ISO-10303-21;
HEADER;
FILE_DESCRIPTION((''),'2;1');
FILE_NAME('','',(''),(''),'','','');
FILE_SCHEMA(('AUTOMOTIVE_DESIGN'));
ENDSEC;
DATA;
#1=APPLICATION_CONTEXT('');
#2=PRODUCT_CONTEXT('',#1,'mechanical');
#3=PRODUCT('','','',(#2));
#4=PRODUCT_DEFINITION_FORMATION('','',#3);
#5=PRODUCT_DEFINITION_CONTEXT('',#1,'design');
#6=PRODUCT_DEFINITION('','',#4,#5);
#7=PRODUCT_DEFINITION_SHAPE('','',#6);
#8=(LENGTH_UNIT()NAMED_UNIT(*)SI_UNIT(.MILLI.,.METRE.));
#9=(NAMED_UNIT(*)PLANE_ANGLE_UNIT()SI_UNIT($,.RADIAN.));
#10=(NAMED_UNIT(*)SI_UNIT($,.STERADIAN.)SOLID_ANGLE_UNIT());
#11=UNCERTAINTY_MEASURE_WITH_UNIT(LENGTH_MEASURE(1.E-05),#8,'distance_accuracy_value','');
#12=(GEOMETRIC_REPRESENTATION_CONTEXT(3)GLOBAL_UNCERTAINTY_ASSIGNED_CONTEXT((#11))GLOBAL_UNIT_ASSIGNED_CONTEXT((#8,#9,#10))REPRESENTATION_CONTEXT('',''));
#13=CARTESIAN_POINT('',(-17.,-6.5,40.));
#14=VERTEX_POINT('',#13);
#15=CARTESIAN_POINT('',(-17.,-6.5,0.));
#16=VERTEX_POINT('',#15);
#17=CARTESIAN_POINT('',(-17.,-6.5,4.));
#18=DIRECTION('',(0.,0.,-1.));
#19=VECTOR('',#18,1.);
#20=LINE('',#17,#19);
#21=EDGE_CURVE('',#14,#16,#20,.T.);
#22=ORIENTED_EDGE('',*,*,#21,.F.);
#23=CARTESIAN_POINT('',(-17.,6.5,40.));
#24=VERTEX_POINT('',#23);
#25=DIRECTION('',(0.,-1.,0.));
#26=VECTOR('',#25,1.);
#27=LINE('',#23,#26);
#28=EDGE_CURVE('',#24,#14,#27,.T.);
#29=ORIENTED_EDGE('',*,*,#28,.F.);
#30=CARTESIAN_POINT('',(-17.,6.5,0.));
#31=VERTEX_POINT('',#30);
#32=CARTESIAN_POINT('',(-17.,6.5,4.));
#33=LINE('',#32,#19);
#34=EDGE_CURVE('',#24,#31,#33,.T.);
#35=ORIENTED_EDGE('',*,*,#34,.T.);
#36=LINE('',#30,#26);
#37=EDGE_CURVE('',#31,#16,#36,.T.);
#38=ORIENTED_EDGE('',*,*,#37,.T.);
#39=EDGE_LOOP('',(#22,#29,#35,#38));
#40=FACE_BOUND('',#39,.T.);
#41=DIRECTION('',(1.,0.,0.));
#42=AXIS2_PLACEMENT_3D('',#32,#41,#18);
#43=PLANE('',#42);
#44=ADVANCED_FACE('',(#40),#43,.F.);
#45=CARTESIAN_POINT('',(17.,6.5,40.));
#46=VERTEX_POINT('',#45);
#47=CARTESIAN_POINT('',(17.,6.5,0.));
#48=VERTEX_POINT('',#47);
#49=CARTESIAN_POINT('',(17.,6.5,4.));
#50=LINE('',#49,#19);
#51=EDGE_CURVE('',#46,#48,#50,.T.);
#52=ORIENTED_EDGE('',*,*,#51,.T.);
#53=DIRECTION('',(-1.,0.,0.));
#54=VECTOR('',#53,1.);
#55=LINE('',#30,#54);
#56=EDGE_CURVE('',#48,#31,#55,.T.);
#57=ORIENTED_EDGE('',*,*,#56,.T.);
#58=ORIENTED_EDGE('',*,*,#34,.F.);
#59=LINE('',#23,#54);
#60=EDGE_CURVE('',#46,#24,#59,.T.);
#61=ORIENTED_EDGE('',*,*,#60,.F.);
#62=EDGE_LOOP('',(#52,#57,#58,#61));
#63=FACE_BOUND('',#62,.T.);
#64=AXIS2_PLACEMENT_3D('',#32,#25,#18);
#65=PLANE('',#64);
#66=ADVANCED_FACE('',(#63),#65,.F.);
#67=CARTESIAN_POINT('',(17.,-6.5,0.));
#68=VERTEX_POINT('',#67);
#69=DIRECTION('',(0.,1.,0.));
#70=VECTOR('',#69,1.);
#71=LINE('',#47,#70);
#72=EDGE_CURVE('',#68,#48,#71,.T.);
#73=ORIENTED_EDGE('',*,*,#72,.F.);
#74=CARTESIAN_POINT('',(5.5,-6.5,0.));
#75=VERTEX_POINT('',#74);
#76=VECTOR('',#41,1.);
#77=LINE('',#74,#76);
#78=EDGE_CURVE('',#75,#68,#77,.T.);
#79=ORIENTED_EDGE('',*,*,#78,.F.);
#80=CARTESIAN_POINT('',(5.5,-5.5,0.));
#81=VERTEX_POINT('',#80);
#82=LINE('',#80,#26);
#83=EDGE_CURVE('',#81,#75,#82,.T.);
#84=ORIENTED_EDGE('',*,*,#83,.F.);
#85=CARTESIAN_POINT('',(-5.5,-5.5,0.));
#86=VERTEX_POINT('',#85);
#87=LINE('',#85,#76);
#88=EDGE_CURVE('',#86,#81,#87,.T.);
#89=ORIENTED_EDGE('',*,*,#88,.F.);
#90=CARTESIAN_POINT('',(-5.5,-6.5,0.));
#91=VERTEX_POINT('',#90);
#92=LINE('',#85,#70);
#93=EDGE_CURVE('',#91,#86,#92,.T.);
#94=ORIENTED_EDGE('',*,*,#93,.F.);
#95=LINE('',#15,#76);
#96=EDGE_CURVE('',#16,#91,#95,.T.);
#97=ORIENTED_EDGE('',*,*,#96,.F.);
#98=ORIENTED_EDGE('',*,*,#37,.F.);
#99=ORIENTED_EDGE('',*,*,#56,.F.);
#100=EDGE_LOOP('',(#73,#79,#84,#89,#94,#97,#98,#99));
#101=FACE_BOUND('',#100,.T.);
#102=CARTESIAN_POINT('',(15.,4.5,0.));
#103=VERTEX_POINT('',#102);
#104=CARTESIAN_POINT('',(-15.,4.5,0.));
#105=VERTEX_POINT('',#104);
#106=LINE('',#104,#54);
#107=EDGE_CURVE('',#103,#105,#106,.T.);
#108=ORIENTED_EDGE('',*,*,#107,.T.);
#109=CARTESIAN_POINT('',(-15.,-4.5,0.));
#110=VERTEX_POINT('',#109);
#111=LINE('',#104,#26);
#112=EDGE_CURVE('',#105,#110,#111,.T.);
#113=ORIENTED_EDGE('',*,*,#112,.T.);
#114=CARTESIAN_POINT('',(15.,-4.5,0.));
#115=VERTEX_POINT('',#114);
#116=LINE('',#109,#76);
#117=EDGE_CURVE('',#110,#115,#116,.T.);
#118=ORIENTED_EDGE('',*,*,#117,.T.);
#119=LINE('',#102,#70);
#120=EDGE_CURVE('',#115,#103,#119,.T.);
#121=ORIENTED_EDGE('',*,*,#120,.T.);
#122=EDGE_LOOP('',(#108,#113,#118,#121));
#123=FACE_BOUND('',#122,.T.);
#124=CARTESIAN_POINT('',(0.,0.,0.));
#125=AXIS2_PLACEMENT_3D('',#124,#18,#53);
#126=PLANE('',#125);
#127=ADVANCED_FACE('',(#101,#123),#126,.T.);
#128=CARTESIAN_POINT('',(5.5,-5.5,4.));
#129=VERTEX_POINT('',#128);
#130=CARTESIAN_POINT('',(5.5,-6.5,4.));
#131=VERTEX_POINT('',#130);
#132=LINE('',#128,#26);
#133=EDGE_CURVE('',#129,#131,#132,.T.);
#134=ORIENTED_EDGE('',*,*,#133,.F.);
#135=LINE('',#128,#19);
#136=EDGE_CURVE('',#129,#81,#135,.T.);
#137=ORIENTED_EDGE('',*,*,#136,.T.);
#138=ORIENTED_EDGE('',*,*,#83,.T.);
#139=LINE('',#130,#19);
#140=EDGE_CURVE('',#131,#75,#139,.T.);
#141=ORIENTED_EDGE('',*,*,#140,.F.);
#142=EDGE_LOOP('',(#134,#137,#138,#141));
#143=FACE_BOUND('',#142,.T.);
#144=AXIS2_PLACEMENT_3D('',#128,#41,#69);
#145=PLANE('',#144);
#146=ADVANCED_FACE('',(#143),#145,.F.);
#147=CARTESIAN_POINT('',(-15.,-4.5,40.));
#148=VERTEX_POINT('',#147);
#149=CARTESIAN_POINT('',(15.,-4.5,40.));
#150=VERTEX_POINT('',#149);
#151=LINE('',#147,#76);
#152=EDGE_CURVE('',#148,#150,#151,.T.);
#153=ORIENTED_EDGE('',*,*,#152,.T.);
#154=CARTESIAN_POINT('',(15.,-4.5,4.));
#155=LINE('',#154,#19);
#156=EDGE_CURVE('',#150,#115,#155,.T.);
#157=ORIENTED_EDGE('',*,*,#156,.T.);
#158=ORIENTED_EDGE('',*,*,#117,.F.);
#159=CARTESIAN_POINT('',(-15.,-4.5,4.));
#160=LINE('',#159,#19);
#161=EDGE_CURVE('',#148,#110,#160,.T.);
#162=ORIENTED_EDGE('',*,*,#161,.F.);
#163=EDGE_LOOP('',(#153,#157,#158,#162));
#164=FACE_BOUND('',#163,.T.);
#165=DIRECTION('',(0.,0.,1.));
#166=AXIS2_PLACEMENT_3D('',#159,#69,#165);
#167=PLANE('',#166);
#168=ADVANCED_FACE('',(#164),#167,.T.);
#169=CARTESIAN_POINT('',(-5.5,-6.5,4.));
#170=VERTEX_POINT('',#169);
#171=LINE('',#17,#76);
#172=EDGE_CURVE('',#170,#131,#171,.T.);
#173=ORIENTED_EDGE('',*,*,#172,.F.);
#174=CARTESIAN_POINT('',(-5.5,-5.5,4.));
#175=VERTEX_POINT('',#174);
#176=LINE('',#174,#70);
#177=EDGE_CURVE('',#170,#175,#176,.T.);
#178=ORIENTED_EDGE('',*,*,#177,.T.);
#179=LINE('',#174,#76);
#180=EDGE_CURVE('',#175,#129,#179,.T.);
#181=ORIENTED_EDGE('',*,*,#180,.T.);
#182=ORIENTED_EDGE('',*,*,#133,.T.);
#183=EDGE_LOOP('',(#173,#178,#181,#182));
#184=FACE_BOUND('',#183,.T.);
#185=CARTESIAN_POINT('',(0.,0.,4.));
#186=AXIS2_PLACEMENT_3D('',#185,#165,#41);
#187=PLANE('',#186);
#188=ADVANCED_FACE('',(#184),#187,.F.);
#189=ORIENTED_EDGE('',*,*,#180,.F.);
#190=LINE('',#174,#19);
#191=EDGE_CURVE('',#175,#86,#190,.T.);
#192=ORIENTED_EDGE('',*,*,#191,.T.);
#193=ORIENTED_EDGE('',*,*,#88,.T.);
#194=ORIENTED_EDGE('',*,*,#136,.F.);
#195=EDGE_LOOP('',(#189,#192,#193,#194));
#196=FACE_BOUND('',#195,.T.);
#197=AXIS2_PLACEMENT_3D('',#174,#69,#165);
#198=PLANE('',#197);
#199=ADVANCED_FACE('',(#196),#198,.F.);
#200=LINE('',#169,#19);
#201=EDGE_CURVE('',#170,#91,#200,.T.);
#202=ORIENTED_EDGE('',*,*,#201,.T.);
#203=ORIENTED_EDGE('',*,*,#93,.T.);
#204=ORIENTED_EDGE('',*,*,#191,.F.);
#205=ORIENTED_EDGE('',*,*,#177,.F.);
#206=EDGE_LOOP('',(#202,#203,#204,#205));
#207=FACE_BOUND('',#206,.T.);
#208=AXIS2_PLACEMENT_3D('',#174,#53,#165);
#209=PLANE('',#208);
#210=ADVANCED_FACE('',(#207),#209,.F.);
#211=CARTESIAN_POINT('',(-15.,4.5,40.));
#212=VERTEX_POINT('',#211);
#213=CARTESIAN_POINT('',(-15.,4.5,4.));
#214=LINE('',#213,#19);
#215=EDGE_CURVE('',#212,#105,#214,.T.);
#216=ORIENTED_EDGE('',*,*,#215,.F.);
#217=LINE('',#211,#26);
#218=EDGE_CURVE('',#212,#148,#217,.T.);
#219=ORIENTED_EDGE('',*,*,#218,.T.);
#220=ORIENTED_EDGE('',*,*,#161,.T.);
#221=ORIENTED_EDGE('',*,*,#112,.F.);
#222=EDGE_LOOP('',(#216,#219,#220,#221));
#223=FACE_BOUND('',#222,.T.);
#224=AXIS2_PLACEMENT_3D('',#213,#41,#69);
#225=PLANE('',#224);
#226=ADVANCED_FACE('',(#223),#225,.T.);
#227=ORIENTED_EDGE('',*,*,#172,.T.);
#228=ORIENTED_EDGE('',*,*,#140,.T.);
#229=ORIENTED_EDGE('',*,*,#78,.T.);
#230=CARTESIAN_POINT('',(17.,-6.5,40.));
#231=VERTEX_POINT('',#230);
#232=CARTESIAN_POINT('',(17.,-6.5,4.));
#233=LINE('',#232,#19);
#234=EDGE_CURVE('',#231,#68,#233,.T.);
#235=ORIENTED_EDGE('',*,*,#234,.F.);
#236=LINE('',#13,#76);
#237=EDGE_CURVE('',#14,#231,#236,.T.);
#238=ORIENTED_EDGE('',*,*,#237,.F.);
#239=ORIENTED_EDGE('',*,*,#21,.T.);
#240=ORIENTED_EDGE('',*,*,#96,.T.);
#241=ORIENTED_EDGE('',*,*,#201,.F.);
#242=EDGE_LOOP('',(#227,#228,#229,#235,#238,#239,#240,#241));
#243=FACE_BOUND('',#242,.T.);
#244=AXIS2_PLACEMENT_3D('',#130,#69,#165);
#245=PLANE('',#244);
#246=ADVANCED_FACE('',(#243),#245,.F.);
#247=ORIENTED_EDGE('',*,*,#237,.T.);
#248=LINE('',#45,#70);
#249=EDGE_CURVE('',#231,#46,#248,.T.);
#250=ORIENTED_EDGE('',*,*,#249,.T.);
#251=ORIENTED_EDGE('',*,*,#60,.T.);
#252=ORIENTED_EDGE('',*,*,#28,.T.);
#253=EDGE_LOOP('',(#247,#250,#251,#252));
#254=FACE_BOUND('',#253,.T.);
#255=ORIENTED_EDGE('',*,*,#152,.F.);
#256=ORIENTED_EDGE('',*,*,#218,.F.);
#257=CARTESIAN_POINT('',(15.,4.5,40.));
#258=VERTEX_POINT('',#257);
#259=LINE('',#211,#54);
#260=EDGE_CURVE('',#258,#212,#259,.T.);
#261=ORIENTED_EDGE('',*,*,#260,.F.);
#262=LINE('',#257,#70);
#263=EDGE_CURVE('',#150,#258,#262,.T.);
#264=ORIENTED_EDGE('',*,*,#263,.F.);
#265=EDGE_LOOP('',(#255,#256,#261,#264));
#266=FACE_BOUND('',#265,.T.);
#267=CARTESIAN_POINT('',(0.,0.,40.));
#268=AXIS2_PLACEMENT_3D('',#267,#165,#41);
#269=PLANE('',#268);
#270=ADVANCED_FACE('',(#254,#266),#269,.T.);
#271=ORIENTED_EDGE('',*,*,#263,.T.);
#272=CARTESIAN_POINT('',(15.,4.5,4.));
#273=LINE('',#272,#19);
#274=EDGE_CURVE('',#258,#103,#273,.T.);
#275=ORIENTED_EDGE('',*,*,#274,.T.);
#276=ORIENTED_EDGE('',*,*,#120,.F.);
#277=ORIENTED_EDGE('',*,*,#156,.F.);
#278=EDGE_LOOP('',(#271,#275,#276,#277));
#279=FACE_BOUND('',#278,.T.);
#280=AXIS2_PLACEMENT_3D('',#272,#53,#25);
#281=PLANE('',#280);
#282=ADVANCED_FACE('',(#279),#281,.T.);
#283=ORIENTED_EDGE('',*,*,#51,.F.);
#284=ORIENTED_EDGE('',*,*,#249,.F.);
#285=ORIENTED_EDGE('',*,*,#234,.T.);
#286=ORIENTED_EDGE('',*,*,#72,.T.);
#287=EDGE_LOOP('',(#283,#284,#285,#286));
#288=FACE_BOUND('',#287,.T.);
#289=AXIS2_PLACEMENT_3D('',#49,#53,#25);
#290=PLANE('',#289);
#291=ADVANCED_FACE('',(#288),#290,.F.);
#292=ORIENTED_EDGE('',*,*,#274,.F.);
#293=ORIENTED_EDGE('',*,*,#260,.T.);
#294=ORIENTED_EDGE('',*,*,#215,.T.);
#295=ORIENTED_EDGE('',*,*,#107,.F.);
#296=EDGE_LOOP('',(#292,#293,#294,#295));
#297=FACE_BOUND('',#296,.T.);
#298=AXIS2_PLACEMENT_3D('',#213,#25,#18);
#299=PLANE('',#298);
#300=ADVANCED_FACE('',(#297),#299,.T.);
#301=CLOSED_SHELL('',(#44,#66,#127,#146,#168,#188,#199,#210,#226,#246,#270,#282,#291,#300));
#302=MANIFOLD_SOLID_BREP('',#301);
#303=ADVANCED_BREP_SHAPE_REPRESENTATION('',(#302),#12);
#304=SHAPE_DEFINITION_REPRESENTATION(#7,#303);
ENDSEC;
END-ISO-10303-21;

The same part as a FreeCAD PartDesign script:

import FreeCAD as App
import Part
import Sketcher
Q = App.Units.Quantity


def add_polygon(sketch, points):
    """Adds a closed chain of lines whose ends are joined by coincident constraints."""
    first, n = sketch.GeometryCount, len(points)
    for a, b in zip(points, points[1:] + points[:1]):
        sketch.addGeometry(Part.LineSegment(App.Vector(*a, 0), App.Vector(*b, 0)), False)
    for i in range(n):
        sketch.addConstraint(Sketcher.Constraint("Coincident", first + i, 2, first + (i + 1) % n, 1))

doc = App.newDocument("Part")
params = doc.addObject("Spreadsheet::Sheet", "Params")
for row, (alias, value) in enumerate([
    ("sketch1_width", "11 mm"),
    ("sketch1_width2", "34 mm"),
    ("sketch1_width3", "30 mm"),
    ("sketch1_height", "13 mm"),
    ("sketch1_height2", "1 mm"),
    ("pad1_length", "4 mm"),
    ("sketch2_width", "34 mm"),
    ("sketch2_width2", "30 mm"),
    ("sketch2_height", "13 mm"),
    ("sketch2_height2", "9 mm"),
    ("pad2_length", "36 mm"),
], start=1):
    params.set(f"A{row}", alias)
    params.set(f"B{row}", "=" + value)
    params.setAlias(f"B{row}", alias)

body = doc.addObject("PartDesign::Body", "Body")

# Sketch on XY plane
sketch1 = doc.addObject("Sketcher::SketchObject", "Sketch")
body.addObject(sketch1)
sketch1.AttachmentSupport = (doc.XY_Plane, [""])
sketch1.MapMode = "FlatFace"
add_polygon(sketch1, [(-17, 6.5), (-17, -6.5), (-5.5, -6.5), (-5.5, -5.5), (5.5, -5.5), (5.5, -6.5), (17, -6.5), (17, 6.5)])  # lines 0-7
add_polygon(sketch1, [(15, -4.5), (-15, -4.5), (-15, 4.5), (15, 4.5)])  # lines 8-11
sketch1.addConstraint([
    Sketcher.Constraint("Vertical", 0),
    Sketcher.Constraint("Horizontal", 1),
    Sketcher.Constraint("Vertical", 2),
    Sketcher.Constraint("Horizontal", 3),
    Sketcher.Constraint("Vertical", 4),
    Sketcher.Constraint("Horizontal", 5),
    Sketcher.Constraint("Vertical", 6),
    Sketcher.Constraint("Horizontal", 7),
    Sketcher.Constraint("Horizontal", 8),
    Sketcher.Constraint("Vertical", 9),
    Sketcher.Constraint("Horizontal", 10),
    Sketcher.Constraint("Vertical", 11),
    Sketcher.Constraint("Symmetric", 0, 2, 6, 2, -1, 1),
    Sketcher.Constraint("Symmetric", 8, 2, 10, 2, -1, 1),
    Sketcher.Constraint("Symmetric", 1, 2, 4, 2, -2),
    Sketcher.Constraint("DistanceX", 3, 1, 3, 2, Q("11 mm")),
    Sketcher.Constraint("DistanceX", 7, 2, 7, 1, Q("34 mm")),
    Sketcher.Constraint("DistanceX", 8, 2, 8, 1, Q("30 mm")),
    Sketcher.Constraint("DistanceY", 0, 2, 0, 1, Q("13 mm")),
    Sketcher.Constraint("DistanceY", 2, 1, 2, 2, Q("1 mm")),
    Sketcher.Constraint("DistanceY", 9, 1, 9, 2, Q("9 mm")),
])
sketch1.setExpression("Constraints[27]", "Params.sketch1_width")
sketch1.setExpression("Constraints[28]", "Params.sketch1_width2")
sketch1.setExpression("Constraints[29]", "Params.sketch1_width3")
sketch1.setExpression("Constraints[30]", "Params.sketch1_height")
sketch1.setExpression("Constraints[31]", "Params.sketch1_height2")
pad1 = doc.addObject("PartDesign::Pad", "Pad")
body.addObject(pad1)
pad1.Profile = sketch1
pad1.setExpression("Length", "Params.pad1_length")

# Sketch on XY plane
sketch2 = doc.addObject("Sketcher::SketchObject", "Sketch001")
body.addObject(sketch2)
sketch2.AttachmentSupport = (doc.XY_Plane, [""])
sketch2.MapMode = "FlatFace"
sketch2.AttachmentOffset = App.Placement(App.Vector(0, 0, 4), App.Rotation())
add_polygon(sketch2, [(-17, 6), (-17, -6), (17, -6), (17, 6)])  # lines 0-3
add_polygon(sketch2, [(15, -4), (-15, -4), (-15, 4), (15, 4)])  # lines 4-7
sketch2.addConstraint([
    Sketcher.Constraint("Vertical", 0),
    Sketcher.Constraint("Horizontal", 1),
    Sketcher.Constraint("Vertical", 2),
    Sketcher.Constraint("Horizontal", 3),
    Sketcher.Constraint("Horizontal", 4),
    Sketcher.Constraint("Vertical", 5),
    Sketcher.Constraint("Horizontal", 6),
    Sketcher.Constraint("Vertical", 7),
    Sketcher.Constraint("Symmetric", 0, 2, 2, 2, -1, 1),
    Sketcher.Constraint("Symmetric", 4, 2, 6, 2, -1, 1),
    Sketcher.Constraint("DistanceX", 1, 1, 1, 2, Q("34 mm")),
    Sketcher.Constraint("DistanceX", 4, 2, 4, 1, Q("30 mm")),
    Sketcher.Constraint("DistanceY", 0, 2, 0, 1, Q("13 mm")),
    Sketcher.Constraint("DistanceY", 5, 1, 5, 2, Q("9 mm")),
])
sketch2.setExpression("Constraints[18]", "Params.sketch2_width")
sketch2.setExpression("Constraints[19]", "Params.sketch2_width2")
sketch2.setExpression("Constraints[20]", "Params.sketch2_height")
sketch2.setExpression("Constraints[21]", "Params.sketch2_height2")
pad2 = doc.addObject("PartDesign::Pad", "Pad001")
body.addObject(pad2)
pad2.Profile = sketch2
pad2.setExpression("Length", "Params.pad2_length")

doc.recompute()
